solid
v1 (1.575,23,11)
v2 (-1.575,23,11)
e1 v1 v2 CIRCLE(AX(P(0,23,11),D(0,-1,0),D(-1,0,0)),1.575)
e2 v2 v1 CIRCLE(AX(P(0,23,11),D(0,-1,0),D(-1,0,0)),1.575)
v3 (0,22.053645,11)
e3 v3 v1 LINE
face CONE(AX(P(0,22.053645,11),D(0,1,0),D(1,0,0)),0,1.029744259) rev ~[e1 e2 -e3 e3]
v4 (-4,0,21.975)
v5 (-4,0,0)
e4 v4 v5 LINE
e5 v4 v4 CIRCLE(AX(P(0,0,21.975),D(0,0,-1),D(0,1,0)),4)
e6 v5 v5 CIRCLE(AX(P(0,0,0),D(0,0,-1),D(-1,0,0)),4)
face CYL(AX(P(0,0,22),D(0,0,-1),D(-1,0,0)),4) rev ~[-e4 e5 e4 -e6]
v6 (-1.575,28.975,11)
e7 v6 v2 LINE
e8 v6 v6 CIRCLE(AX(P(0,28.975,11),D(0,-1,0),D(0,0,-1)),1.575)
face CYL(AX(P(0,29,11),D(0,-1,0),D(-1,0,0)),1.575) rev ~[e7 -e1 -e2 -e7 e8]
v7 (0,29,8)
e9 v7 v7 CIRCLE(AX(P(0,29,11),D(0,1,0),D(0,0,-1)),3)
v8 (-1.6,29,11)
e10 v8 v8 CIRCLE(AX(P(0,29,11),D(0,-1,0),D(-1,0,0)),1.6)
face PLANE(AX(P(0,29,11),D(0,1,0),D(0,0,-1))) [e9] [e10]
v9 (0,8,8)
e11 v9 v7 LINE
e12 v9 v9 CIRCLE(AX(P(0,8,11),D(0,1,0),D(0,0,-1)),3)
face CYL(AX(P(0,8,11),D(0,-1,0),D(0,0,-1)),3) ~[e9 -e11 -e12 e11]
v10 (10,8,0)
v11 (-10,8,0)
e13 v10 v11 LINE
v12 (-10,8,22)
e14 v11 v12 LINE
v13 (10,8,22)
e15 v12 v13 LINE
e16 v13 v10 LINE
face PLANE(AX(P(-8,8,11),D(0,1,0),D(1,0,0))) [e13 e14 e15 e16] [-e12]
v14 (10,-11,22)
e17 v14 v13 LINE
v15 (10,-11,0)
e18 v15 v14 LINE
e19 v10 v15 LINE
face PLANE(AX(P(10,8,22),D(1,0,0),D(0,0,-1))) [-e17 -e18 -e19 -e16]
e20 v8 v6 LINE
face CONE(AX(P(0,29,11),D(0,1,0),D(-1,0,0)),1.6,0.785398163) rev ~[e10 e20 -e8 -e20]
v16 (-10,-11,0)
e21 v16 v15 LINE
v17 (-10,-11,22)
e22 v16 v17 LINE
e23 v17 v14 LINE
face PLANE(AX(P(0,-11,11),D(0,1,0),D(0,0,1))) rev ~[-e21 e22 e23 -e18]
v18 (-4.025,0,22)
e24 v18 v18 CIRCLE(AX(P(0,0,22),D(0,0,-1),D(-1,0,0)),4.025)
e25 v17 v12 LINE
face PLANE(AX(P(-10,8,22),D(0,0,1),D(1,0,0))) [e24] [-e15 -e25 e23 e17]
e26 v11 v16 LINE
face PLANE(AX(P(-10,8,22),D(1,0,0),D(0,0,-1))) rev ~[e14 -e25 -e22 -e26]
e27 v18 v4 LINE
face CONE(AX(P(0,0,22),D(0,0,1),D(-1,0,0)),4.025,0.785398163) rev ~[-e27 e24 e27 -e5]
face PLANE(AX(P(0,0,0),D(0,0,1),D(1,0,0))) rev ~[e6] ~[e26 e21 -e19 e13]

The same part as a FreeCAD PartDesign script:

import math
import FreeCAD as App
import Part
import Sketcher

V = App.Vector

doc = App.newDocument("Part")
body = doc.addObject("PartDesign::Body", "Body")

# Sketch on XY plane
sketch1 = body.newObject("Sketcher::SketchObject", "Sketch")
sketch1.AttachmentSupport = (doc.getObject("XY_Plane"), [""])
sketch1.MapMode = "FlatFace"
sketch1.addGeometry(Part.Circle(V(0, 0, 0), V(0, 0, 1), 10), False)
sketch1.addConstraint([
    Sketcher.Constraint("Coincident", 0, 3, -1, 1),
    Sketcher.Constraint("Diameter", 0, 20.0),
])
pad1 = body.newObject("PartDesign::Pad", "Pad")
pad1.Profile = sketch1
pad1.Length = 22

# Sketch on XZ plane
sketch2 = body.newObject("Sketcher::SketchObject", "Sketch001")
sketch2.AttachmentSupport = (doc.getObject("XZ_Plane"), [""])
sketch2.MapMode = "FlatFace"
sketch2.addGeometry(Part.Circle(V(0, 11, 0), V(0, 0, 1), 11), False)
sketch2.addConstraint([
    Sketcher.Constraint("PointOnObject", 0, 3, -2),
    Sketcher.Constraint("Diameter", 0, 22.0),
    Sketcher.Constraint("DistanceY", -1, 1, 0, 3, 11.0),
])
pad2 = body.newObject("PartDesign::Pad", "Pad001")
pad2.Profile = sketch2
pad2.Length = 22
pad2.Midplane = True

# Sketch on XY plane
sketch3 = body.newObject("Sketcher::SketchObject", "Sketch002")
sketch3.AttachmentSupport = (doc.getObject("XY_Plane"), [""])
sketch3.MapMode = "FlatFace"
sketch3.AttachmentOffset = App.Placement(V(0, 0, 22), App.Rotation())
sketch3.addGeometry(Part.Circle(V(0, 0, 0), V(0, 0, 1), 4), False)
sketch3.addConstraint([
    Sketcher.Constraint("Coincident", 0, 3, -1, 1),
    Sketcher.Constraint("Diameter", 0, 8.0),
])
doc.recompute()
hole = body.newObject("PartDesign::Hole", "Hole")
hole.Profile = sketch3
hole.ThreadType = "None"
hole.Diameter = 8
hole.DepthType = "ThroughAll"
hole.HoleCutType = "Countersink"
hole.HoleCutDiameter = 8.05
hole.HoleCutCountersinkAngle = 90

# Sketch on XZ plane
sketch4 = body.newObject("Sketcher::SketchObject", "Sketch003")
sketch4.AttachmentSupport = (doc.getObject("XZ_Plane"), [""])
sketch4.MapMode = "FlatFace"
sketch4.AttachmentOffset = App.Placement(V(0, 0, -11), App.Rotation())
sketch4.addGeometry(Part.Circle(V(0, 11, 0), V(0, 0, 1), 16), False)
sketch4.addConstraint([
    Sketcher.Constraint("PointOnObject", 0, 3, -2),
    Sketcher.Constraint("DistanceY", -1, 1, 0, 3, 11.0),
    Sketcher.Constraint("Diameter", 0, 31.58584),
])
pocket1 = body.newObject("PartDesign::Pocket", "Pocket")
pocket1.Profile = sketch4
pocket1.Length = 3
pocket1.Reversed = True

# Sketch on XZ plane
sketch5 = body.newObject("Sketcher::SketchObject", "Sketch004")
sketch5.AttachmentSupport = (doc.getObject("XZ_Plane"), [""])
sketch5.MapMode = "FlatFace"
sketch5.AttachmentOffset = App.Placement(V(0, 0, -8), App.Rotation())
sketch5.addGeometry(Part.Circle(V(0, 11, 0), V(0, 0, 1), 3), False)
sketch5.addConstraint([
    Sketcher.Constraint("PointOnObject", 0, 3, -2),
    Sketcher.Constraint("Diameter", 0, 6.0),
    Sketcher.Constraint("DistanceY", -1, 1, 0, 3, 11.0),
])
pad3 = body.newObject("PartDesign::Pad", "Pad002")
pad3.Profile = sketch5
pad3.Length = 21
pad3.Reversed = True

# Sketch on XZ plane
sketch6 = body.newObject("Sketcher::SketchObject", "Sketch005")
sketch6.AttachmentSupport = (doc.getObject("XZ_Plane"), [""])
sketch6.MapMode = "FlatFace"
sketch6.AttachmentOffset = App.Placement(V(0, 0, -8), App.Rotation())
sketch6.addGeometry([
    Part.LineSegment(V(-10, 0, 0), V(-10, 22, 0)),  # 0
    Part.LineSegment(V(-10, 22, 0), V(-6, 22, 0)),  # 1
    Part.LineSegment(V(-6, 22, 0), V(-6, 0, 0)),  # 2
    Part.LineSegment(V(-6, 0, 0), V(-10, 0, 0)),  # 3
    Part.LineSegment(V(6, 0, 0), V(6, 22, 0)),  # 4
    Part.LineSegment(V(6, 22, 0), V(10, 22, 0)),  # 5
    Part.LineSegment(V(10, 22, 0), V(10, 0, 0)),  # 6
    Part.LineSegment(V(10, 0, 0), V(6, 0, 0)),  # 7
], False)
sketch6.addConstraint([
    Sketcher.Constraint("Coincident", 0, 2, 1, 1),
    Sketcher.Constraint("Coincident", 1, 2, 2, 1),
    Sketcher.Constraint("Coincident", 2, 2, 3, 1),
    Sketcher.Constraint("Coincident", 3, 2, 0, 1),
    Sketcher.Constraint("Coincident", 4, 2, 5, 1),
    Sketcher.Constraint("Coincident", 5, 2, 6, 1),
    Sketcher.Constraint("Coincident", 6, 2, 7, 1),
    Sketcher.Constraint("Coincident", 7, 2, 4, 1),
    Sketcher.Constraint("Vertical", 0),
    Sketcher.Constraint("Horizontal", 1),
    Sketcher.Constraint("Vertical", 2),
    Sketcher.Constraint("Horizontal", 3),
    Sketcher.Constraint("Vertical", 4),
    Sketcher.Constraint("Horizontal", 5),
    Sketcher.Constraint("Vertical", 6),
    Sketcher.Constraint("Horizontal", 7),
    Sketcher.Constraint("Symmetric", 3, 2, 6, 2, -1, 1),
    Sketcher.Constraint("Symmetric", 1, 2, 4, 2, -2),
    Sketcher.Constraint("PointOnObject", 2, 2, -1),
    Sketcher.Constraint("DistanceX", 1, 1, 1, 2, 4.0),
    Sketcher.Constraint("DistanceY", 0, 1, 0, 2, 22.0),
    Sketcher.Constraint("DistanceX", 0, 2, -1, 1, 10.0),
])
pad4 = body.newObject("PartDesign::Pad", "Pad003")
pad4.Profile = sketch6
pad4.Length = 19

# Sketch on XZ plane
sketch7 = body.newObject("Sketcher::SketchObject", "Sketch006")
sketch7.AttachmentSupport = (doc.getObject("XZ_Plane"), [""])
sketch7.MapMode = "FlatFace"
sketch7.AttachmentOffset = App.Placement(V(0, 0, 8), App.Rotation())
sketch7.addGeometry([
    Part.LineSegment(V(0, 22, 0), V(-6, 22, 0)),  # 0
    Part.LineSegment(V(-6, 22, 0), V(-6, 20.2, 0)),  # 1
    Part.ArcOfCircle(Part.Circle(V(0, 11, 0), V(0, 0, 1), 11), math.radians(90), math.radians(123)),  # 2
    Part.LineSegment(V(6, 22, 0), V(0, 22, 0)),  # 3
    Part.ArcOfCircle(Part.Circle(V(0, 11, 0), V(0, 0, 1), 11), math.radians(57), math.radians(90)),  # 4
    Part.LineSegment(V(6, 20.2, 0), V(6, 22, 0)),  # 5
    Part.LineSegment(V(-6, 1.8, 0), V(-6, 0, 0)),  # 6
    Part.LineSegment(V(-6, 0, 0), V(0, 0, 0)),  # 7
    Part.ArcOfCircle(Part.Circle(V(0, 11, 0), V(0, 0, 1), 11), math.radians(-123), math.radians(-90)),  # 8
    Part.ArcOfCircle(Part.Circle(V(0, 11, 0), V(0, 0, 1), 11), math.radians(-90), math.radians(-57)),  # 9
    Part.LineSegment(V(0, 0, 0), V(6, 0, 0)),  # 10
    Part.LineSegment(V(6, 0, 0), V(6, 1.8, 0)),  # 11
], False)
sketch7.addConstraint([
    Sketcher.Constraint("Coincident", 0, 2, 1, 1),
    Sketcher.Constraint("Coincident", 1, 2, 2, 2),
    Sketcher.Constraint("Tangent", 2, 1, 0, 1),
    Sketcher.Constraint("Tangent", 3, 2, 4, 2),
    Sketcher.Constraint("Coincident", 4, 1, 5, 1),
    Sketcher.Constraint("Coincident", 5, 2, 3, 1),
    Sketcher.Constraint("Coincident", 6, 2, 7, 1),
    Sketcher.Constraint("Tangent", 7, 2, 8, 2),
    Sketcher.Constraint("Coincident", 8, 1, 6, 1),
    Sketcher.Constraint("Tangent", 9, 1, 10, 1),
    Sketcher.Constraint("Coincident", 10, 2, 11, 1),
    Sketcher.Constraint("Coincident", 11, 2, 9, 2),
    Sketcher.Constraint("Horizontal", 0),
    Sketcher.Constraint("Vertical", 1),
    Sketcher.Constraint("Horizontal", 3),
    Sketcher.Constraint("Vertical", 5),
    Sketcher.Constraint("Vertical", 6),
    Sketcher.Constraint("Horizontal", 7),
    Sketcher.Constraint("Horizontal", 10),
    Sketcher.Constraint("Vertical", 11),
    Sketcher.Constraint("Coincident", 7, 2, -1, 1),
    Sketcher.Constraint("Coincident", 9, 1, -1, 1),
    Sketcher.Constraint("Coincident", 4, 3, 2, 3),
    Sketcher.Constraint("Coincident", 8, 3, 2, 3),
    Sketcher.Constraint("Equal", 2, 4),
    Sketcher.Constraint("Equal", 4, 8),
    Sketcher.Constraint("Equal", 8, 9),
    Sketcher.Constraint("Horizontal", 1, 2, 4, 1),
    Sketcher.Constraint("Horizontal", 8, 1, 11, 2),
    Sketcher.Constraint("Vertical", 1, 2, 6, 2),
    Sketcher.Constraint("Radius", 2, 11.0),
    Sketcher.Constraint("DistanceX", 0, 2, 0, 1, 6.0),
])
pad5 = body.newObject("PartDesign::Pad", "Pad004")
pad5.Profile = sketch7
pad5.Length = 3

# Sketch on XZ plane
sketch8 = body.newObject("Sketcher::SketchObject", "Sketch007")
sketch8.AttachmentSupport = (doc.getObject("XZ_Plane"), [""])
sketch8.MapMode = "FlatFace"
sketch8.AttachmentOffset = App.Placement(V(0, 0, 11), App.Rotation())
sketch8.addGeometry([
    Part.LineSegment(V(-13, 25, 0), V(-13, -3, 0)),  # 0
    Part.LineSegment(V(-13, -3, 0), V(13, -3, 0)),  # 1
    Part.LineSegment(V(13, -3, 0), V(13, 25, 0)),  # 2
    Part.LineSegment(V(13, 25, 0), V(-13, 25, 0)),  # 3
    Part.LineSegment(V(10, 0, 0), V(-10, 0, 0)),  # 4
    Part.LineSegment(V(-10, 0, 0), V(-10, 22, 0)),  # 5
    Part.LineSegment(V(-10, 22, 0), V(10, 22, 0)),  # 6
    Part.LineSegment(V(10, 22, 0), V(10, 0, 0)),  # 7
], False)
sketch8.addConstraint([
    Sketcher.Constraint("Coincident", 0, 2, 1, 1),
    Sketcher.Constraint("Coincident", 1, 2, 2, 1),
    Sketcher.Constraint("Coincident", 2, 2, 3, 1),
    Sketcher.Constraint("Coincident", 3, 2, 0, 1),
    Sketcher.Constraint("Coincident", 4, 2, 5, 1),
    Sketcher.Constraint("Coincident", 5, 2, 6, 1),
    Sketcher.Constraint("Coincident", 6, 2, 7, 1),
    Sketcher.Constraint("Coincident", 7, 2, 4, 1),
    Sketcher.Constraint("Vertical", 0),
    Sketcher.Constraint("Horizontal", 1),
    Sketcher.Constraint("Vertical", 2),
    Sketcher.Constraint("Horizontal", 3),
    Sketcher.Constraint("Horizontal", 4),
    Sketcher.Constraint("Vertical", 5),
    Sketcher.Constraint("Horizontal", 6),
    Sketcher.Constraint("Vertical", 7),
    Sketcher.Constraint("Symmetric", 4, 2, 7, 2, -1, 1),
    Sketcher.Constraint("DistanceX", 1, 1, 1, 2, 26.0),
    Sketcher.Constraint("DistanceX", 4, 2, 4, 1, 20.0),
    Sketcher.Constraint("DistanceY", 0, 2, 0, 1, 28.0),
    Sketcher.Constraint("DistanceY", 5, 1, 5, 2, 22.0),
    Sketcher.Constraint("DistanceX", 0, 2, -1, 1, 13.0),
    Sketcher.Constraint("DistanceY", 0, 2, -1, 1, 3.0),
])
pocket2 = body.newObject("PartDesign::Pocket", "Pocket001")
pocket2.Profile = sketch8
pocket2.Type = "ThroughAll"

# Sketch on XZ plane
sketch9 = body.newObject("Sketcher::SketchObject", "Sketch008")
sketch9.AttachmentSupport = (doc.getObject("XZ_Plane"), [""])
sketch9.MapMode = "FlatFace"
sketch9.AttachmentOffset = App.Placement(V(0, 0, -29), App.Rotation())
sketch9.addGeometry(Part.Circle(V(0, 11, 0), V(0, 0, 1), 1.6), False)
sketch9.addConstraint([
    Sketcher.Constraint("PointOnObject", 0, 3, -2),
    Sketcher.Constraint("Diameter", 0, 3.15),
    Sketcher.Constraint("DistanceY", -1, 1, 0, 3, 11.0),
])
doc.recompute()
hole2 = body.newObject("PartDesign::Hole", "Hole001")
hole2.Profile = sketch9
hole2.ThreadType = "None"
hole2.Diameter = 3.15
hole2.DepthType = "Dimension"
hole2.Depth = 6
hole2.DrillPoint = "Angled"
hole2.DrillPointAngle = 118
hole2.HoleCutType = "Countersink"
hole2.HoleCutDiameter = 3.2
hole2.HoleCutCountersinkAngle = 90
hole2.Reversed = True

doc.recompute()
